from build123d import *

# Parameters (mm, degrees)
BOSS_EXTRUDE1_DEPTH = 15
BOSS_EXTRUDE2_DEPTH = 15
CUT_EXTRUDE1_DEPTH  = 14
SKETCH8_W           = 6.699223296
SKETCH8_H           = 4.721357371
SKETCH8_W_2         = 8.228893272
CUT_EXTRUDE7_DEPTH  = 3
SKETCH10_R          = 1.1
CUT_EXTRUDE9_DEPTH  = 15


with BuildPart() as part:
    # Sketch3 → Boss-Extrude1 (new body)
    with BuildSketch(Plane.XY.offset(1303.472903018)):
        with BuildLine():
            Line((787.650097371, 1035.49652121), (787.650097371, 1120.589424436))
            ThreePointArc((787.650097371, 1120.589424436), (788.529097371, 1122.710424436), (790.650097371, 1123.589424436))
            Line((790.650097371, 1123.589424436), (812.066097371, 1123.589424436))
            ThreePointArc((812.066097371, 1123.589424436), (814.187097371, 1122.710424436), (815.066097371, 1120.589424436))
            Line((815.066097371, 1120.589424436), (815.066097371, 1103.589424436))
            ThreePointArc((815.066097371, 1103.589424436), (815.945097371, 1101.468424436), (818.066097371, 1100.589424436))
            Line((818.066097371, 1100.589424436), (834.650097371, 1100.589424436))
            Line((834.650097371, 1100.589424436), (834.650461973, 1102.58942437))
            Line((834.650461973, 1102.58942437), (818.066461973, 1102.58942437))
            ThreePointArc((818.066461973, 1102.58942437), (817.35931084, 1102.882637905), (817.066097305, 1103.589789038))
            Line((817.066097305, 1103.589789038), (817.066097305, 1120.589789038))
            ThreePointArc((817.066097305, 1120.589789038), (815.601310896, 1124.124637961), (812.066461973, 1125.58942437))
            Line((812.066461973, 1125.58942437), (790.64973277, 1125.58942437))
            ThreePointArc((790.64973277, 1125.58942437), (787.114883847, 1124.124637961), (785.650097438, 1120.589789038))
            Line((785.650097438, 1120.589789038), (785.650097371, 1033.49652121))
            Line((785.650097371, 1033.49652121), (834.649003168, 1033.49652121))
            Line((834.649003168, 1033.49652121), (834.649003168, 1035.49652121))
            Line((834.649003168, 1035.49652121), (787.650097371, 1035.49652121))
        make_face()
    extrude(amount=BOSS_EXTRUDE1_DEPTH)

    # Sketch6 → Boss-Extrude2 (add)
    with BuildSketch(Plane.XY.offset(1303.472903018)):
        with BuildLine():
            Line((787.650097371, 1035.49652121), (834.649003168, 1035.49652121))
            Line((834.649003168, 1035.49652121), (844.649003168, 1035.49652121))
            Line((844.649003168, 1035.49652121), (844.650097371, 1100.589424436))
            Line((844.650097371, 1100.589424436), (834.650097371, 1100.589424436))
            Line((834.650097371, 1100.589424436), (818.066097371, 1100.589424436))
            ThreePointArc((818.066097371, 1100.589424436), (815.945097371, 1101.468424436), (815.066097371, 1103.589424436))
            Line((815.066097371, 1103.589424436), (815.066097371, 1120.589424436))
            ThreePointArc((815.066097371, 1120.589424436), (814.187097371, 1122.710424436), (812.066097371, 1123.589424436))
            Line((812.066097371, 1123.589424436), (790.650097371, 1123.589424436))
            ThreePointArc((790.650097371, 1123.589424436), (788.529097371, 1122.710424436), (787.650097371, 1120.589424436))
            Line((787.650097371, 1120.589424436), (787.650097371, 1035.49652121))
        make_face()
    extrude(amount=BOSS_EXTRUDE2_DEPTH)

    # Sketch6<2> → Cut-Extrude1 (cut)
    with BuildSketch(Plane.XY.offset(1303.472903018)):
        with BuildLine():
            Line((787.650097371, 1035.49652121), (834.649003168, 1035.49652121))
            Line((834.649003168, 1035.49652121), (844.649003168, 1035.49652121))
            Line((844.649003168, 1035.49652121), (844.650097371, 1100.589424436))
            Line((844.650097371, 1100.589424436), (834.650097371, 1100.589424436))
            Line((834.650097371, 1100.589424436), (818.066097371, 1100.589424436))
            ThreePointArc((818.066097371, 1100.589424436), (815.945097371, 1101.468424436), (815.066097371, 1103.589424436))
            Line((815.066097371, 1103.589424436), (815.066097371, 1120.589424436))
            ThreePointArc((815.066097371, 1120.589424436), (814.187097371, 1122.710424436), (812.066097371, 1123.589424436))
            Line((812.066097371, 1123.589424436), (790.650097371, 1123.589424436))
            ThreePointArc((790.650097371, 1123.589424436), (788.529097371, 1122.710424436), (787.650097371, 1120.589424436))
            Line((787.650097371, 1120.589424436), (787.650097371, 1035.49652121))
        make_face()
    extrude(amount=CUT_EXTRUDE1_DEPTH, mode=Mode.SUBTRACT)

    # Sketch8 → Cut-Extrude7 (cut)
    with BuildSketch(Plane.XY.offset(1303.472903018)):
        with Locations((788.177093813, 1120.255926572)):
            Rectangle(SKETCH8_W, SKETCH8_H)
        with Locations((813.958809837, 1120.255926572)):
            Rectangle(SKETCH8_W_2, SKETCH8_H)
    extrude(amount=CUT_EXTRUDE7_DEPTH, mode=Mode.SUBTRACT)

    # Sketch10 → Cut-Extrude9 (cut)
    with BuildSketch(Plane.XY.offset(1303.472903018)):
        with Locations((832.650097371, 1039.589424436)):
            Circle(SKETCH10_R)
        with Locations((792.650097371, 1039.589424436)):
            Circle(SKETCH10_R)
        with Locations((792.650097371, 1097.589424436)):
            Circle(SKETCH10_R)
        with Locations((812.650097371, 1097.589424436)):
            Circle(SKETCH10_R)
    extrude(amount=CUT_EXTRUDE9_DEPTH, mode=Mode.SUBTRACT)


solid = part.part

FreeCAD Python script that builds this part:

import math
import FreeCAD as App
import Part
import Sketcher
Q = App.Units.Quantity


def add_polygon(sketch, points):
    """Adds a closed chain of lines whose ends are joined by coincident constraints."""
    first, n = sketch.GeometryCount, len(points)
    for a, b in zip(points, points[1:] + points[:1]):
        sketch.addGeometry(Part.LineSegment(App.Vector(*a, 0), App.Vector(*b, 0)), False)
    for i in range(n):
        sketch.addConstraint(Sketcher.Constraint("Coincident", first + i, 2, first + (i + 1) % n, 1))

doc = App.newDocument("Part")
body = doc.addObject("PartDesign::Body", "Body")

# Sketch on XY plane
sketch1 = doc.addObject("Sketcher::SketchObject", "Sketch")
body.addObject(sketch1)
sketch1.AttachmentSupport = (doc.XY_Plane, [""])
sketch1.MapMode = "FlatFace"
sketch1.AttachmentOffset = App.Placement(App.Vector(0, 0, 1303.472903), App.Rotation())
sketch1.addGeometry([
    Part.LineSegment(App.Vector(787.650097, 1035.496521, 0), App.Vector(787.650097, 1120.589424, 0)),  # 0
    Part.ArcOfCircle(Part.Circle(App.Vector(790.651192, 1120.58833, 0), App.Vector(0, 0, 1), 3.001094), math.radians(90.02089), math.radians(179.97911)),  # 1
    Part.LineSegment(App.Vector(790.650097, 1123.589424, 0), App.Vector(812.066097, 1123.589424, 0)),  # 2
    Part.ArcOfCircle(Part.Circle(App.Vector(812.065003, 1120.58833, 0), App.Vector(0, 0, 1), 3.001094), math.radians(0.02089), math.radians(89.97911)),  # 3
    Part.LineSegment(App.Vector(815.066097, 1120.589424, 0), App.Vector(815.066097, 1103.589424, 0)),  # 4
    Part.ArcOfCircle(Part.Circle(App.Vector(818.067192, 1103.590519, 0), App.Vector(0, 0, 1), 3.001094), math.radians(-179.97911), math.radians(-90.02089)),  # 5
    Part.LineSegment(App.Vector(818.066097, 1100.589424, 0), App.Vector(834.650097, 1100.589424, 0)),  # 6
    Part.LineSegment(App.Vector(834.650097, 1100.589424, 0), App.Vector(834.650462, 1102.589424, 0)),  # 7
    Part.LineSegment(App.Vector(834.650462, 1102.589424, 0), App.Vector(818.066462, 1102.589424, 0)),  # 8
    Part.ArcOfCircle(Part.Circle(App.Vector(818.067192, 1103.590519, 0), App.Vector(0, 0, 1), 1.001095), math.radians(-179.958243), math.radians(-90.041757)),  # 9
    Part.LineSegment(App.Vector(817.066097, 1103.589789, 0), App.Vector(817.066097, 1120.589789, 0)),  # 10
    Part.ArcOfCircle(Part.Circle(App.Vector(812.065003, 1120.58833, 0), App.Vector(0, 0, 1), 5.001094), math.radians(0.016713), math.radians(89.983287)),  # 11
    Part.LineSegment(App.Vector(812.066462, 1125.589424, 0), App.Vector(790.649733, 1125.589424, 0)),  # 12
    Part.ArcOfCircle(Part.Circle(App.Vector(790.651192, 1120.58833, 0), App.Vector(0, 0, 1), 5.001094), math.radians(90.016713), math.radians(179.983287)),  # 13
    Part.LineSegment(App.Vector(785.650097, 1120.589789, 0), App.Vector(785.650097, 1033.496521, 0)),  # 14
    Part.LineSegment(App.Vector(785.650097, 1033.496521, 0), App.Vector(834.649003, 1033.496521, 0)),  # 15
    Part.LineSegment(App.Vector(834.649003, 1033.496521, 0), App.Vector(834.649003, 1035.496521, 0)),  # 16
    Part.LineSegment(App.Vector(834.649003, 1035.496521, 0), App.Vector(787.650097, 1035.496521, 0)),  # 17
], False)
sketch1.addConstraint([
    Sketcher.Constraint("Coincident", 0, 2, 1, 2),
    Sketcher.Constraint("Coincident", 1, 1, 2, 1),
    Sketcher.Constraint("Coincident", 2, 2, 3, 2),
    Sketcher.Constraint("Coincident", 3, 1, 4, 1),
    Sketcher.Constraint("Coincident", 4, 2, 5, 1),
    Sketcher.Constraint("Coincident", 5, 2, 6, 1),
    Sketcher.Constraint("Coincident", 6, 2, 7, 1),
    Sketcher.Constraint("Coincident", 7, 2, 8, 1),
    Sketcher.Constraint("Coincident", 8, 2, 9, 2),
    Sketcher.Constraint("Coincident", 9, 1, 10, 1),
    Sketcher.Constraint("Coincident", 10, 2, 11, 1),
    Sketcher.Constraint("Coincident", 11, 2, 12, 1),
    Sketcher.Constraint("Coincident", 12, 2, 13, 1),
    Sketcher.Constraint("Coincident", 13, 2, 14, 1),
    Sketcher.Constraint("Coincident", 14, 2, 15, 1),
    Sketcher.Constraint("Coincident", 15, 2, 16, 1),
    Sketcher.Constraint("Coincident", 16, 2, 17, 1),
    Sketcher.Constraint("Coincident", 17, 2, 0, 1),
    Sketcher.Constraint("Vertical", 0),
    Sketcher.Constraint("Horizontal", 2),
    Sketcher.Constraint("Vertical", 4),
    Sketcher.Constraint("Horizontal", 6),
    Sketcher.Constraint("Horizontal", 8),
    Sketcher.Constraint("Vertical", 10),
    Sketcher.Constraint("Horizontal", 12),
    Sketcher.Constraint("Vertical", 14),
    Sketcher.Constraint("Horizontal", 15),
    Sketcher.Constraint("Vertical", 16),
    Sketcher.Constraint("Horizontal", 17),
    Sketcher.Constraint("Coincident", 9, 3, 5, 3),
    Sketcher.Constraint("Coincident", 11, 3, 3, 3),
    Sketcher.Constraint("Coincident", 13, 3, 1, 3),
    Sketcher.Constraint("Equal", 1, 3),
    Sketcher.Constraint("Equal", 3, 5),
    Sketcher.Constraint("Horizontal", 0, 2, 3, 1),
    Sketcher.Constraint("Horizontal", 10, 2, 13, 2),
    Sketcher.Constraint("Equal", 6, 8),
    Sketcher.Constraint("Equal", 4, 10),
    Sketcher.Constraint("DistanceY", 4, 2, 4, 1, Q("17 mm")),
    Sketcher.Constraint("DistanceY", 16, 1, 16, 2, Q("2 mm")),
    Sketcher.Constraint("Distance", 7, Q("2 mm")),
    Sketcher.Constraint("DistanceX", 0, 2, 1, 1, Q("3 mm")),
    Sketcher.Constraint("DistanceY", 0, 2, 1, 1, Q("3 mm")),
    Sketcher.Constraint("DistanceX", 2, 2, 3, 1, Q("3 mm")),
    Sketcher.Constraint("DistanceX", 4, 2, 5, 2, Q("3 mm")),
    Sketcher.Constraint("DistanceY", 5, 2, 4, 2, Q("3 mm")),
    Sketcher.Constraint("DistanceX", 2, 1, 2, 2, Q("21.416 mm")),
    Sketcher.Constraint("DistanceX", 6, 1, 6, 2, Q("16.584 mm")),
    Sketcher.Constraint("Radius", 1, Q("3.001094 mm")),
    Sketcher.Constraint("DistanceX", 12, 2, 12, 1, Q("21.416729 mm")),
    Sketcher.Constraint("DistanceX", 15, 1, 15, 2, Q("48.998906 mm")),
    Sketcher.Constraint("DistanceY", 0, 1, 0, 2, Q("85.092903 mm")),
    Sketcher.Constraint("DistanceY", 14, 2, 14, 1, Q("87.093268 mm")),
    Sketcher.Constraint("DistanceX", -1, 1, 1, 3, Q("790.651192 mm")),
    Sketcher.Constraint("DistanceY", -1, 1, 1, 3, Q("1120.58833 mm")),
    Sketcher.Constraint("DistanceX", -1, 1, 7, 2, Q("834.650462 mm")),
    Sketcher.Constraint("DistanceX", -1, 1, 11, 2, Q("812.066462 mm")),
])
pad1 = doc.addObject("PartDesign::Pad", "Pad")
body.addObject(pad1)
pad1.Profile = sketch1
pad1.Length = 15

# Sketch on XY plane
sketch2 = doc.addObject("Sketcher::SketchObject", "Sketch001")
body.addObject(sketch2)
sketch2.AttachmentSupport = (doc.XY_Plane, [""])
sketch2.MapMode = "FlatFace"
sketch2.AttachmentOffset = App.Placement(App.Vector(0, 0, 1303.472903), App.Rotation())
sketch2.addGeometry([
    Part.LineSegment(App.Vector(787.650097, 1035.496521, 0), App.Vector(844.649003, 1035.496521, 0)),  # 0
    Part.LineSegment(App.Vector(844.649003, 1035.496521, 0), App.Vector(844.650097, 1100.589424, 0)),  # 1
    Part.LineSegment(App.Vector(844.650097, 1100.589424, 0), App.Vector(818.066097, 1100.589424, 0)),  # 2
    Part.ArcOfCircle(Part.Circle(App.Vector(818.067192, 1103.590519, 0), App.Vector(0, 0, 1), 3.001094), math.radians(-179.97911), math.radians(-90.02089)),  # 3
    Part.LineSegment(App.Vector(815.066097, 1103.589424, 0), App.Vector(815.066097, 1120.589424, 0)),  # 4
    Part.ArcOfCircle(Part.Circle(App.Vector(812.065003, 1120.58833, 0), App.Vector(0, 0, 1), 3.001094), math.radians(0.02089), math.radians(89.97911)),  # 5
    Part.LineSegment(App.Vector(812.066097, 1123.589424, 0), App.Vector(790.650097, 1123.589424, 0)),  # 6
    Part.ArcOfCircle(Part.Circle(App.Vector(790.651192, 1120.58833, 0), App.Vector(0, 0, 1), 3.001094), math.radians(90.02089), math.radians(179.97911)),  # 7
    Part.LineSegment(App.Vector(787.650097, 1120.589424, 0), App.Vector(787.650097, 1035.496521, 0)),  # 8
], False)
sketch2.addConstraint([
    Sketcher.Constraint("Coincident", 0, 2, 1, 1),
    Sketcher.Constraint("Coincident", 1, 2, 2, 1),
    Sketcher.Constraint("Coincident", 2, 2, 3, 2),
    Sketcher.Constraint("Coincident", 3, 1, 4, 1),
    Sketcher.Constraint("Coincident", 4, 2, 5, 1),
    Sketcher.Constraint("Coincident", 5, 2, 6, 1),
    Sketcher.Constraint("Coincident", 6, 2, 7, 1),
    Sketcher.Constraint("Coincident", 7, 2, 8, 1),
    Sketcher.Constraint("Coincident", 8, 2, 0, 1),
    Sketcher.Constraint("Horizontal", 0),
    Sketcher.Constraint("Horizontal", 2),
    Sketcher.Constraint("Vertical", 4),
    Sketcher.Constraint("Horizontal", 6),
    Sketcher.Constraint("Vertical", 8),
    Sketcher.Constraint("Equal", 3, 5),
    Sketcher.Constraint("Equal", 5, 7),
    Sketcher.Constraint("Horizontal", 4, 2, 7, 2),
    Sketcher.Constraint("DistanceY", 4, 1, 4, 2, Q("17 mm")),
    Sketcher.Constraint("DistanceX", 3, 1, 2, 2, Q("3 mm")),
    Sketcher.Constraint("DistanceY", 2, 2, 3, 1, Q("3 mm")),
    Sketcher.Constraint("DistanceX", 5, 2, 4, 2, Q("3 mm")),
    Sketcher.Constraint("DistanceY", 4, 2, 5, 2, Q("3 mm")),
    Sketcher.Constraint("DistanceX", 7, 2, 6, 2, Q("3 mm")),
    Sketcher.Constraint("DistanceX", 2, 2, 2, 1, Q("26.584 mm")),
    Sketcher.Constraint("DistanceX", 6, 2, 6, 1, Q("21.416 mm")),
    Sketcher.Constraint("Radius", 3, Q("3.001094 mm")),
    Sketcher.Constraint("DistanceX", 5, 3, 0, 2, Q("32.584 mm")),
    Sketcher.Constraint("DistanceY", 8, 2, 8, 1, Q("85.092903 mm")),
    Sketcher.Constraint("DistanceX", -1, 1, 3, 3, Q("818.067192 mm")),
    Sketcher.Constraint("DistanceY", -1, 1, 3, 3, Q("1103.590519 mm")),
])
pad2 = doc.addObject("PartDesign::Pad", "Pad001")
body.addObject(pad2)
pad2.Profile = sketch2
pad2.Length = 15

# Sketch on XY plane
sketch3 = doc.addObject("Sketcher::SketchObject", "Sketch002")
body.addObject(sketch3)
sketch3.AttachmentSupport = (doc.XY_Plane, [""])
sketch3.MapMode = "FlatFace"
sketch3.AttachmentOffset = App.Placement(App.Vector(0, 0, 1303.472903), App.Rotation())
sketch3.addGeometry([
    Part.LineSegment(App.Vector(787.650097, 1035.496521, 0), App.Vector(844.649003, 1035.496521, 0)),  # 0
    Part.LineSegment(App.Vector(844.649003, 1035.496521, 0), App.Vector(844.650097, 1100.589424, 0)),  # 1
    Part.LineSegment(App.Vector(844.650097, 1100.589424, 0), App.Vector(818.066097, 1100.589424, 0)),  # 2
    Part.ArcOfCircle(Part.Circle(App.Vector(818.067192, 1103.590519, 0), App.Vector(0, 0, 1), 3.001094), math.radians(-179.97911), math.radians(-90.02089)),  # 3
    Part.LineSegment(App.Vector(815.066097, 1103.589424, 0), App.Vector(815.066097, 1120.589424, 0)),  # 4
    Part.ArcOfCircle(Part.Circle(App.Vector(812.065003, 1120.58833, 0), App.Vector(0, 0, 1), 3.001094), math.radians(0.02089), math.radians(89.97911)),  # 5
    Part.LineSegment(App.Vector(812.066097, 1123.589424, 0), App.Vector(790.650097, 1123.589424, 0)),  # 6
    Part.ArcOfCircle(Part.Circle(App.Vector(790.651192, 1120.58833, 0), App.Vector(0, 0, 1), 3.001094), math.radians(90.02089), math.radians(179.97911)),  # 7
    Part.LineSegment(App.Vector(787.650097, 1120.589424, 0), App.Vector(787.650097, 1035.496521, 0)),  # 8
], False)
sketch3.addConstraint([
    Sketcher.Constraint("Coincident", 0, 2, 1, 1),
    Sketcher.Constraint("Coincident", 1, 2, 2, 1),
    Sketcher.Constraint("Coincident", 2, 2, 3, 2),
    Sketcher.Constraint("Coincident", 3, 1, 4, 1),
    Sketcher.Constraint("Coincident", 4, 2, 5, 1),
    Sketcher.Constraint("Coincident", 5, 2, 6, 1),
    Sketcher.Constraint("Coincident", 6, 2, 7, 1),
    Sketcher.Constraint("Coincident", 7, 2, 8, 1),
    Sketcher.Constraint("Coincident", 8, 2, 0, 1),
    Sketcher.Constraint("Horizontal", 0),
    Sketcher.Constraint("Horizontal", 2),
    Sketcher.Constraint("Vertical", 4),
    Sketcher.Constraint("Horizontal", 6),
    Sketcher.Constraint("Vertical", 8),
    Sketcher.Constraint("Equal", 3, 5),
    Sketcher.Constraint("Equal", 5, 7),
    Sketcher.Constraint("Horizontal", 4, 2, 7, 2),
    Sketcher.Constraint("DistanceY", 4, 1, 4, 2, Q("17 mm")),
    Sketcher.Constraint("DistanceX", 3, 1, 2, 2, Q("3 mm")),
    Sketcher.Constraint("DistanceY", 2, 2, 3, 1, Q("3 mm")),
    Sketcher.Constraint("DistanceX", 5, 2, 4, 2, Q("3 mm")),
    Sketcher.Constraint("DistanceY", 4, 2, 5, 2, Q("3 mm")),
    Sketcher.Constraint("DistanceX", 7, 2, 6, 2, Q("3 mm")),
    Sketcher.Constraint("DistanceX", 2, 2, 2, 1, Q("26.584 mm")),
    Sketcher.Constraint("DistanceX", 6, 2, 6, 1, Q("21.416 mm")),
    Sketcher.Constraint("Radius", 3, Q("3.001094 mm")),
    Sketcher.Constraint("DistanceX", 5, 3, 0, 2, Q("32.584 mm")),
    Sketcher.Constraint("DistanceY", 8, 2, 8, 1, Q("85.092903 mm")),
    Sketcher.Constraint("DistanceX", -1, 1, 3, 3, Q("818.067192 mm")),
    Sketcher.Constraint("DistanceY", -1, 1, 3, 3, Q("1103.590519 mm")),
])
pocket1 = doc.addObject("PartDesign::Pocket", "Pocket")
body.addObject(pocket1)
pocket1.Profile = sketch3
pocket1.Length = 14
pocket1.Reversed = True

# Sketch on XY plane
sketch4 = doc.addObject("Sketcher::SketchObject", "Sketch003")
body.addObject(sketch4)
sketch4.AttachmentSupport = (doc.XY_Plane, [""])
sketch4.MapMode = "FlatFace"
sketch4.AttachmentOffset = App.Placement(App.Vector(0, 0, 1303.472903), App.Rotation())
add_polygon(sketch4, [(784.827482, 1122.616605), (784.827482, 1117.895248), (791.526705, 1117.895248), (791.526705, 1122.616605)])  # lines 0-3
add_polygon(sketch4, [(809.844363, 1122.616605), (809.844363, 1117.895248), (818.073256, 1117.895248), (818.073256, 1122.616605)])  # lines 4-7
sketch4.addConstraint([
    Sketcher.Constraint("Vertical", 0),
    Sketcher.Constraint("Horizontal", 1),
    Sketcher.Constraint("Vertical", 2),
    Sketcher.Constraint("Horizontal", 3),
    Sketcher.Constraint("Vertical", 4),
    Sketcher.Constraint("Horizontal", 5),
    Sketcher.Constraint("Vertical", 6),
    Sketcher.Constraint("Horizontal", 7),
    Sketcher.Constraint("Horizontal", 1, 2, 4, 2),
    Sketcher.Constraint("Horizontal", 3, 2, 6, 2),
    Sketcher.Constraint("DistanceX", 1, 1, 1, 2, Q("6.699223 mm")),
    Sketcher.Constraint("DistanceX", 5, 1, 5, 2, Q("8.228893 mm")),
    Sketcher.Constraint("DistanceY", 0, 2, 0, 1, Q("4.721357 mm")),
    Sketcher.Constraint("DistanceX", 0, 2, 4, 2, Q("25.016881 mm")),
    Sketcher.Constraint("DistanceX", -1, 1, 0, 2, Q("784.827482 mm")),
    Sketcher.Constraint("DistanceY", -1, 1, 0, 2, Q("1117.895248 mm")),
])
pocket2 = doc.addObject("PartDesign::Pocket", "Pocket001")
body.addObject(pocket2)
pocket2.Profile = sketch4
pocket2.Length = 3
pocket2.Reversed = True

# Sketch on XY plane
sketch5 = doc.addObject("Sketcher::SketchObject", "Sketch004")
body.addObject(sketch5)
sketch5.AttachmentSupport = (doc.XY_Plane, [""])
sketch5.MapMode = "FlatFace"
sketch5.AttachmentOffset = App.Placement(App.Vector(0, 0, 1303.472903), App.Rotation())
sketch5.addGeometry([
    Part.Circle(App.Vector(832.650097, 1039.589424, 0), App.Vector(0, 0, 1), 1.1),
    Part.Circle(App.Vector(792.650097, 1039.589424, 0), App.Vector(0, 0, 1), 1.1),
    Part.Circle(App.Vector(792.650097, 1097.589424, 0), App.Vector(0, 0, 1), 1.1),
    Part.Circle(App.Vector(812.650097, 1097.589424, 0), App.Vector(0, 0, 1), 1.1),
], False)
sketch5.addConstraint([
    Sketcher.Constraint("Equal", 0, 1),
    Sketcher.Constraint("Equal", 1, 2),
    Sketcher.Constraint("Equal", 2, 3),
    Sketcher.Constraint("Horizontal", 0, 3, 1, 3),
    Sketcher.Constraint("Horizontal", 2, 3, 3, 3),
    Sketcher.Constraint("Vertical", 1, 3, 2, 3),
    Sketcher.Constraint("Diameter", 0, Q("2.2 mm")),
    Sketcher.Constraint("DistanceX", 1, 3, 0, 3, Q("40 mm")),
    Sketcher.Constraint("DistanceY", 1, 3, 2, 3, Q("58 mm")),
    Sketcher.Constraint("DistanceX", 2, 3, 3, 3, Q("20 mm")),
    Sketcher.Constraint("DistanceX", -1, 1, 0, 3, Q("832.650097 mm")),
    Sketcher.Constraint("DistanceY", -1, 1, 0, 3, Q("1039.589424 mm")),
])
pocket3 = doc.addObject("PartDesign::Pocket", "Pocket002")
body.addObject(pocket3)
pocket3.Profile = sketch5
pocket3.Length = 15
pocket3.Reversed = True

doc.recompute()
